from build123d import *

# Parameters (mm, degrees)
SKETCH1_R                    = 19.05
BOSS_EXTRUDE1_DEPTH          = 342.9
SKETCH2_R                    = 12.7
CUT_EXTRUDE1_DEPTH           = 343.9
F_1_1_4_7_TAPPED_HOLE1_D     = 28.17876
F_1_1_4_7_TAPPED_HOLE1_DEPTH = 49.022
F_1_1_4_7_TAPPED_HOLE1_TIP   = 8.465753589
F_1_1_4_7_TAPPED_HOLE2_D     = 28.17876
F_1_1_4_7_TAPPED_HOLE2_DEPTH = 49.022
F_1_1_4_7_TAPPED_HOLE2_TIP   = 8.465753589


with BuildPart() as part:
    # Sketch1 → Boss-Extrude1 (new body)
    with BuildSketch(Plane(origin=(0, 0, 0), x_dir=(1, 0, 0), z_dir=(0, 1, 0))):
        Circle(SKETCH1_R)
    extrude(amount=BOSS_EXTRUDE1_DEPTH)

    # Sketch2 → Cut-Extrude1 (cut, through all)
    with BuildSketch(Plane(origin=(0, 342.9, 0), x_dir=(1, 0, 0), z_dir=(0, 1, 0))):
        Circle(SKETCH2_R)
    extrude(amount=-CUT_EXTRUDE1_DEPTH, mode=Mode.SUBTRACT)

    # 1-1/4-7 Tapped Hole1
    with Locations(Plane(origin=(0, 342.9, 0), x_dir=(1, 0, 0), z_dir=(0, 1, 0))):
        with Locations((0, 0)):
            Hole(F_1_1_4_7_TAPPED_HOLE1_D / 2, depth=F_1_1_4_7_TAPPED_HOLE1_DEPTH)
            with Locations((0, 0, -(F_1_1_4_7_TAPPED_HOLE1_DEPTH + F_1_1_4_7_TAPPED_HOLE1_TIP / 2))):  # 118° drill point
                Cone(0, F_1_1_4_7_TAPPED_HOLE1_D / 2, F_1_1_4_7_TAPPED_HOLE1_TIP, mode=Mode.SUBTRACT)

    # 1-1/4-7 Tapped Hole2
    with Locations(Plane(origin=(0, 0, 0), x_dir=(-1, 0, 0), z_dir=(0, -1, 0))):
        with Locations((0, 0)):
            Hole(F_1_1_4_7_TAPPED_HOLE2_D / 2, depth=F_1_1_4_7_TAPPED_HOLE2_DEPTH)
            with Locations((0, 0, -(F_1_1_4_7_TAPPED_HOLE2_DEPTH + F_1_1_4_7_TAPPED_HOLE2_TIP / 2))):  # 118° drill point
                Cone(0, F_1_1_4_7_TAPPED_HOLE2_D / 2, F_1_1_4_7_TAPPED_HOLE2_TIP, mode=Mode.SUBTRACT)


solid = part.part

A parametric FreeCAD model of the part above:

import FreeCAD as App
import Part
import Sketcher
from FreeCAD import Vector
Q = App.Units.Quantity

doc = App.newDocument("Part")
params = doc.addObject("Spreadsheet::Sheet", "Params")
for row, (alias, value) in enumerate([
    ("sketch1_diameter", "1.5 in"),
    ("pad1_length", "13.5 in"),
    ("sketch2_diameter", "1 in"),
    ("hole_diameter", "1.1094 in"),
    ("hole_depth", "1.93 in"),
    ("hole2_diameter", "1.1094 in"),
    ("hole2_depth", "1.93 in"),
], start=1):
    params.set(f"A{row}", alias)
    params.set(f"B{row}", "=" + value)
    params.setAlias(f"B{row}", alias)

body = doc.addObject("PartDesign::Body", "Body")

sketch1 = body.newObject("Sketcher::SketchObject", "Sketch")
sketch1.AttachmentSupport = (doc.getObject("XZ_Plane"), [""])
sketch1.MapMode = "FlatFace"
sketch1.addGeometry(Part.Circle(Vector(0, 0, 0), Vector(0, 0, 1), 19), False)
sketch1.addConstraint([
    Sketcher.Constraint("Coincident", 0, 3, -1, 1),
    Sketcher.Constraint("Diameter", 0, Q("1.5 in")),
])
sketch1.setExpression("Constraints[1]", "Params.sketch1_diameter")
pad1 = body.newObject("PartDesign::Pad", "Pad")
pad1.Profile = sketch1
pad1.setExpression("Length", "Params.pad1_length")
pad1.Reversed = True

sketch2 = body.newObject("Sketcher::SketchObject", "Sketch001")
sketch2.AttachmentSupport = (doc.getObject("XZ_Plane"), [""])
sketch2.MapMode = "FlatFace"
sketch2.AttachmentOffset = App.Placement(Vector(0, 0, -13.5 * 25.4), App.Rotation())
sketch2.addGeometry(Part.Circle(Vector(0, 0, 0), Vector(0, 0, 1), 13), False)
sketch2.addConstraint([
    Sketcher.Constraint("Coincident", 0, 3, -1, 1),
    Sketcher.Constraint("Diameter", 0, Q("1 in")),
])
sketch2.setExpression("Constraints[1]", "Params.sketch2_diameter")
pocket1 = body.newObject("PartDesign::Pocket", "Pocket")
pocket1.Profile = sketch2
pocket1.Type = "ThroughAll"
pocket1.Reversed = True

sketch3 = body.newObject("Sketcher::SketchObject", "Sketch002")
sketch3.AttachmentSupport = (doc.getObject("XZ_Plane"), [""])
sketch3.MapMode = "FlatFace"
sketch3.AttachmentOffset = App.Placement(Vector(0, 0, -13.5 * 25.4), App.Rotation())
sketch3.addGeometry(Part.Circle(Vector(0, 0, 0), Vector(0, 0, 1), 14), False)
sketch3.addConstraint([
    Sketcher.Constraint("Coincident", 0, 3, -1, 1),
    Sketcher.Constraint("Diameter", 0, Q("1.1094 in")),
])
doc.recompute()
hole = body.newObject("PartDesign::Hole", "Hole")
hole.Profile = sketch3
hole.ThreadType = "None"
hole.setExpression("Diameter", "Params.hole_diameter")
hole.DepthType = "Dimension"
hole.setExpression("Depth", "Params.hole_depth")
hole.DrillPoint = "Angled"
hole.DrillPointAngle = 118
hole.Reversed = True

sketch4 = body.newObject("Sketcher::SketchObject", "Sketch003")
sketch4.AttachmentSupport = (doc.getObject("XZ_Plane"), [""])
sketch4.MapMode = "FlatFace"
sketch4.addGeometry(Part.Circle(Vector(0, 0, 0), Vector(0, 0, 1), 14), False)
sketch4.addConstraint([
    Sketcher.Constraint("Coincident", 0, 3, -1, 1),
    Sketcher.Constraint("Diameter", 0, Q("1.1094 in")),
])
doc.recompute()
hole2 = body.newObject("PartDesign::Hole", "Hole001")
hole2.Profile = sketch4
hole2.ThreadType = "None"
hole2.setExpression("Diameter", "Params.hole2_diameter")
hole2.DepthType = "Dimension"
hole2.setExpression("Depth", "Params.hole2_depth")
hole2.DrillPoint = "Angled"
hole2.DrillPointAngle = 118

doc.recompute()
